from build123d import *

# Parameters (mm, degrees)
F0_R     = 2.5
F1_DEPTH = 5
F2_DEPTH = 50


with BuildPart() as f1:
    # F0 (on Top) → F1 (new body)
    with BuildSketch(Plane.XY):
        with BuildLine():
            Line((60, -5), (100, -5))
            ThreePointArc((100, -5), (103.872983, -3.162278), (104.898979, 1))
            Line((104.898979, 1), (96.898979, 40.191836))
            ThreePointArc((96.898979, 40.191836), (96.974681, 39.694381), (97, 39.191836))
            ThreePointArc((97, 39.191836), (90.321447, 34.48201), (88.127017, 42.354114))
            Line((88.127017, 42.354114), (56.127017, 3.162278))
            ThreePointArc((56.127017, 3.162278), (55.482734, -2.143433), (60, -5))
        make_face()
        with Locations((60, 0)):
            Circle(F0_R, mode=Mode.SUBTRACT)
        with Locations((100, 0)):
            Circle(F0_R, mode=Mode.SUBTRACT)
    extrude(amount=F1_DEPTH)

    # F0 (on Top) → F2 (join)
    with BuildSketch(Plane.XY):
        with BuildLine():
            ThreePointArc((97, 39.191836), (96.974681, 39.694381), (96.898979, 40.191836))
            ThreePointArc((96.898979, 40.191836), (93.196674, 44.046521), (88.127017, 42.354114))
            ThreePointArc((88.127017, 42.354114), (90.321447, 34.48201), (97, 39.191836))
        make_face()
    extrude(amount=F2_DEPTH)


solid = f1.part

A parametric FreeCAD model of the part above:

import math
import FreeCAD as App
import Part
import Sketcher

V = App.Vector

doc = App.newDocument("Part")
params = doc.addObject("Spreadsheet::Sheet", "Params")
for row, (alias, value) in enumerate([
    ("sketch1_diameter", "5 mm"),
    ("sketch1_diameter2", "5 mm"),
    ("sketch1_radius", "4.999999 mm"),
    ("sketch1_radius2", "5 mm"),
    ("sketch1_width", "40 mm"),
    ("pad1_length", "5 mm"),
    ("sketch2_radius", "5 mm"),
    ("pad2_length", "50 mm"),
], start=1):
    params.set(f"A{row}", alias)
    params.set(f"B{row}", "=" + value)
    params.setAlias(f"B{row}", alias)

body = doc.addObject("PartDesign::Body", "Body")

# Sketch on XY plane
sketch1 = body.newObject("Sketcher::SketchObject", "Sketch")
sketch1.AttachmentSupport = (doc.getObject("XY_Plane"), [""])
sketch1.MapMode = "FlatFace"
sketch1.addGeometry(Part.LineSegment(V(60, -5, 0), V(100, -5, 0)), False)
sketch1.addGeometry(Part.ArcOfCircle(Part.Circle(V(100, -0.000001, 0), V(0, 0, 1), 4.999999), math.radians(-90.000002), math.radians(11.536967)), False)
sketch1.addGeometry(Part.LineSegment(V(104.898979, 1, 0), V(96.898979, 40.191836, 0)), False)
sketch1.addGeometry(Part.ArcOfCircle(Part.Circle(V(92.000097, 39.191843, 0), V(0, 0, 1), 4.999903), math.radians(-0.000085), math.radians(11.537099)), False)
sketch1.addGeometry(Part.ArcOfCircle(Part.Circle(V(92, 39.191836, 0), V(0, 0, 1), 5), math.radians(140.768473), math.radians(360.000001)), False)
sketch1.addGeometry(Part.LineSegment(V(88.127017, 42.354114, 0), V(56.127017, 3.162278, 0)), False)
sketch1.addGeometry(Part.ArcOfCircle(Part.Circle(V(60, 0, 0), V(0, 0, 1), 5), math.radians(140.768479), math.radians(269.999995)), False)
sketch1.addGeometry(Part.Circle(V(60, 0, 0), V(0, 0, 1), 2.5), False)
sketch1.addGeometry(Part.Circle(V(100, 0, 0), V(0, 0, 1), 2.5), False)
sketch1.addConstraint(Sketcher.Constraint("Coincident", 0, 2, 1, 1))
sketch1.addConstraint(Sketcher.Constraint("Coincident", 1, 2, 2, 1))
sketch1.addConstraint(Sketcher.Constraint("Coincident", 2, 2, 3, 2))
sketch1.addConstraint(Sketcher.Constraint("Coincident", 3, 1, 4, 2))
sketch1.addConstraint(Sketcher.Constraint("Coincident", 4, 1, 5, 1))
sketch1.addConstraint(Sketcher.Constraint("Coincident", 5, 2, 6, 1))
sketch1.addConstraint(Sketcher.Constraint("Coincident", 6, 2, 0, 1))
sketch1.addConstraint(Sketcher.Constraint("Horizontal", 0))
sketch1.addConstraint(Sketcher.Constraint("Coincident", 7, 3, 6, 3))
sketch1.addConstraint(Sketcher.Constraint("Coincident", 8, 3, 1, 3))
sketch1.addConstraint(Sketcher.Constraint("PointOnObject", 1, 3, -1))
sketch1.addConstraint(Sketcher.Constraint("PointOnObject", 6, 3, -1))
sketch1.addConstraint(Sketcher.Constraint("Diameter", 7, 5.0))
sketch1.addConstraint(Sketcher.Constraint("Diameter", 8, 5.0))
sketch1.addConstraint(Sketcher.Constraint("Radius", 1, 4.999999))
sketch1.addConstraint(Sketcher.Constraint("Radius", 4, 5.0))
sketch1.addConstraint(Sketcher.Constraint("DistanceX", 0, 1, 0, 2, 40.0))
sketch1.addConstraint(Sketcher.Constraint("Distance", 2, 40.0))
sketch1.addConstraint(Sketcher.Constraint("DistanceX", -1, 1, 1, 3, 100.0))
sketch1.addConstraint(Sketcher.Constraint("DistanceX", -1, 1, 4, 3, 92.0))
sketch1.addConstraint(Sketcher.Constraint("DistanceX", -1, 1, 6, 3, 60.0))
sketch1.addConstraint(Sketcher.Constraint("DistanceX", -1, 1, 0, 2, 100.0))
sketch1.addConstraint(Sketcher.Constraint("DistanceY", -1, 1, 1, 2, 1.0))
sketch1.addConstraint(Sketcher.Constraint("DistanceY", 4, 3, 2, 2, 1.0))
sketch1.addConstraint(Sketcher.Constraint("DistanceX", 2, 2, 1, 2, 8.0))
sketch1.addConstraint(Sketcher.Constraint("DistanceY", 3, 1, 2, 2, 1.0))
sketch1.addConstraint(Sketcher.Constraint("Radius", 3, 4.999903))
sketch1.addConstraint(Sketcher.Constraint("DistanceY", -1, 1, 5, 2, 3.162278))
sketch1.addConstraint(Sketcher.Constraint("DistanceY", 4, 3, 4, 1, 3.162278))
sketch1.setExpression("Constraints[12]", "Params.sketch1_diameter")
sketch1.setExpression("Constraints[13]", "Params.sketch1_diameter2")
sketch1.setExpression("Constraints[14]", "Params.sketch1_radius")
sketch1.setExpression("Constraints[15]", "Params.sketch1_radius2")
sketch1.setExpression("Constraints[16]", "Params.sketch1_width")
pad1 = body.newObject("PartDesign::Pad", "Pad")
pad1.Profile = sketch1
pad1.setExpression("Length", "Params.pad1_length")

# Sketch on XY plane
sketch2 = body.newObject("Sketcher::SketchObject", "Sketch001")
sketch2.AttachmentSupport = (doc.getObject("XY_Plane"), [""])
sketch2.MapMode = "FlatFace"
sketch2.addGeometry(Part.ArcOfCircle(Part.Circle(V(92.000097, 39.191843, 0), V(0, 0, 1), 4.999903), math.radians(-0.000085), math.radians(11.537099)), False)
sketch2.addGeometry(Part.ArcOfCircle(Part.Circle(V(92, 39.191836, 0), V(0, 0, 1), 5), math.radians(11.536963), math.radians(140.768469)), False)
sketch2.addGeometry(Part.ArcOfCircle(Part.Circle(V(92, 39.191836, 0), V(0, 0, 1), 5), math.radians(140.768473), math.radians(360.000001)), False)
sketch2.addConstraint(Sketcher.Constraint("Coincident", 0, 2, 1, 1))
sketch2.addConstraint(Sketcher.Constraint("Coincident", 1, 2, 2, 1))
sketch2.addConstraint(Sketcher.Constraint("Coincident", 2, 2, 0, 1))
sketch2.addConstraint(Sketcher.Constraint("Coincident", 2, 3, 1, 3))
sketch2.addConstraint(Sketcher.Constraint("Radius", 1, 5.0))
sketch2.addConstraint(Sketcher.Constraint("DistanceX", -1, 1, 1, 3, 92.0))
sketch2.addConstraint(Sketcher.Constraint("DistanceY", 2, 3, 0, 2, 1.0))
sketch2.addConstraint(Sketcher.Constraint("DistanceY", 2, 2, 0, 2, 1.0))
sketch2.addConstraint(Sketcher.Constraint("Radius", 0, 4.999903))
sketch2.addConstraint(Sketcher.Constraint("DistanceY", 1, 3, 1, 2, 3.162278))
sketch2.addConstraint(Sketcher.Constraint("DistanceY", -1, 1, 0, 3, 39.191843))
sketch2.setExpression("Constraints[4]", "Params.sketch2_radius")
pad2 = body.newObject("PartDesign::Pad", "Pad001")
pad2.Profile = sketch2
pad2.setExpression("Length", "Params.pad2_length")

doc.recompute()
